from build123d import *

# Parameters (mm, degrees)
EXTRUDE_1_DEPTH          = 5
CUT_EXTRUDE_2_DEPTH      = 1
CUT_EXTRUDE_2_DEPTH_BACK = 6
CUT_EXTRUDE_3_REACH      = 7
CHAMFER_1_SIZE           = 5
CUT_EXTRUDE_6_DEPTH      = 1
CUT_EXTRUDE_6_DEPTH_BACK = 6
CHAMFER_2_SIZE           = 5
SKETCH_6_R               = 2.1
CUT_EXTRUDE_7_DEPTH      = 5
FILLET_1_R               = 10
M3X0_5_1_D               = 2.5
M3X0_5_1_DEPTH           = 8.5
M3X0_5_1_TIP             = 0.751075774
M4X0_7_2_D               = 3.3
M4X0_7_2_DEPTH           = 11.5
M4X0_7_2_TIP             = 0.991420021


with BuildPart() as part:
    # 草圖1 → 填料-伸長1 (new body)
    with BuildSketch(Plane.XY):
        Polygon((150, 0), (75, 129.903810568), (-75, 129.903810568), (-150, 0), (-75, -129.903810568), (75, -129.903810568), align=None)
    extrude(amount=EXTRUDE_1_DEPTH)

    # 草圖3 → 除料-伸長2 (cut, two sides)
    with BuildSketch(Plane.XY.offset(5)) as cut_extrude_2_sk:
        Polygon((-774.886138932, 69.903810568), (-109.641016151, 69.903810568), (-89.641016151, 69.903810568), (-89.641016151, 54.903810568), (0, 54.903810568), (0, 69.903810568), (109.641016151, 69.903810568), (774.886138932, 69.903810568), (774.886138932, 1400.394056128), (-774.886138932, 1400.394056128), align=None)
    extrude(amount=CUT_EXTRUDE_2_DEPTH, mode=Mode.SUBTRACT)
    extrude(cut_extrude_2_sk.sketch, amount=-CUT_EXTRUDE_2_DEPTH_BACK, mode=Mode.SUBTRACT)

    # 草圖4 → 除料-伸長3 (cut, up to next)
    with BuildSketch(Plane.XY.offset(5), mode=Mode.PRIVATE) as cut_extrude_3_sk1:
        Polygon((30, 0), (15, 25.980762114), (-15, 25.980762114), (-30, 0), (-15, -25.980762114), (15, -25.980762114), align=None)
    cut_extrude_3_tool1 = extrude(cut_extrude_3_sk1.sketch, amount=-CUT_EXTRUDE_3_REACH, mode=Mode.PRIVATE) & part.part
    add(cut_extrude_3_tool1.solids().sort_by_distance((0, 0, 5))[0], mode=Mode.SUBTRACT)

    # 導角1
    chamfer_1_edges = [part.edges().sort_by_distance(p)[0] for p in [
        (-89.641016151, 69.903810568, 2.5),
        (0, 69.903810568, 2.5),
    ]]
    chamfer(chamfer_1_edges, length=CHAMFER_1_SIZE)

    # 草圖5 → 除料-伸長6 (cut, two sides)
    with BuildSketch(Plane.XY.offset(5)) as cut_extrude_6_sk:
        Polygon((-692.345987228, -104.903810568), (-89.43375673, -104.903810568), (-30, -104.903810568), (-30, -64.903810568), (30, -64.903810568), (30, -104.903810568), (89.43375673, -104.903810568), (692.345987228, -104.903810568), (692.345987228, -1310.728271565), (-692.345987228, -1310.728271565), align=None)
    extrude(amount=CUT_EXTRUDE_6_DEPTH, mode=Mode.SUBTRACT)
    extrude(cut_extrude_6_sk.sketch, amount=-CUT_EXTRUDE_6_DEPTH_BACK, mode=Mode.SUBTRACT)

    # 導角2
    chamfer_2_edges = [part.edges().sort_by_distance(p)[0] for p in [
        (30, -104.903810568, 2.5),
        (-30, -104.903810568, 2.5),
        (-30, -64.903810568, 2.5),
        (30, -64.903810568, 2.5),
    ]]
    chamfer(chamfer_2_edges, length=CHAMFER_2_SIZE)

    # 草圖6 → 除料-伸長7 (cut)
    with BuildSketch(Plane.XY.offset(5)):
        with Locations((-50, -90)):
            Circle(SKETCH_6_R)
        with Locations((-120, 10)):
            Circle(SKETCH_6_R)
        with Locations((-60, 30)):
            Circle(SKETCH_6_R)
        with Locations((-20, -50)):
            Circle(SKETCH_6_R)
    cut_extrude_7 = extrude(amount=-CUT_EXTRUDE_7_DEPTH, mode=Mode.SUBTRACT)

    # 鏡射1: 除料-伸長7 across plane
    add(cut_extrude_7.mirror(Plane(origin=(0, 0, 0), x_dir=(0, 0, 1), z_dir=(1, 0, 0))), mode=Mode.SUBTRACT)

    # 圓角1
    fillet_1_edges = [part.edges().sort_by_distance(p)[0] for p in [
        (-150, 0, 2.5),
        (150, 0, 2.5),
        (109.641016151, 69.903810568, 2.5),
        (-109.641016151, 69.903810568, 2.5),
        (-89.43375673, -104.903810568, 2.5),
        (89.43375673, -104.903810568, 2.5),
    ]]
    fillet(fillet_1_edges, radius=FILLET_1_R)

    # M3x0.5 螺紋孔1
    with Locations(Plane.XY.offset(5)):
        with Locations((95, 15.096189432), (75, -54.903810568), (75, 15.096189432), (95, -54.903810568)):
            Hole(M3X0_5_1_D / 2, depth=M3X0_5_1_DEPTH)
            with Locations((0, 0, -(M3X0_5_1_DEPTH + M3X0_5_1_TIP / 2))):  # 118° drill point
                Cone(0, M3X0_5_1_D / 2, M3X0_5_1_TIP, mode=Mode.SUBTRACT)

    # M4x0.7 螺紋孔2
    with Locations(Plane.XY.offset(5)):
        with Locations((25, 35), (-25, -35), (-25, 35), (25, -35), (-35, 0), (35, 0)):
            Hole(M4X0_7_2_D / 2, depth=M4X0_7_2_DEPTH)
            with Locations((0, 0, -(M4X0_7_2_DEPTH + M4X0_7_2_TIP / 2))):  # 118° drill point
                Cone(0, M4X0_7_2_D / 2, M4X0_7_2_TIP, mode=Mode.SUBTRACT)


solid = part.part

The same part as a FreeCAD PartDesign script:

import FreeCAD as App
import Part
import Sketcher

V = App.Vector
Q = App.Units.Quantity


def edges_at(feature, points):
    """Names of the edges that pass closest to the given points."""
    edges = feature.Shape.Edges
    near = lambda p: min(range(len(edges)), key=lambda i: edges[i].distToShape(Part.Vertex(*p))[0])
    return sorted({f"Edge{near(p) + 1}" for p in points})


def add_polygon(sketch, points):
    """Adds a closed chain of lines whose ends are joined by coincident constraints."""
    first, n = sketch.GeometryCount, len(points)
    for a, b in zip(points, points[1:] + points[:1]):
        sketch.addGeometry(Part.LineSegment(App.Vector(*a, 0), App.Vector(*b, 0)), False)
    for i in range(n):
        sketch.addConstraint(Sketcher.Constraint("Coincident", first + i, 2, first + (i + 1) % n, 1))

doc = App.newDocument("Part")
params = doc.addObject("Spreadsheet::Sheet", "Params")
for row, (alias, value) in enumerate([
    ("sketch1_width", "150 mm"),
    ("sketch1_length", "150 mm"),
    ("pad1_length", "5 mm"),
    ("sketch2_height", "15 mm"),
    ("sketch3_width", "30 mm"),
    ("sketch3_length", "30 mm"),
    ("chamfer_size", "5 mm"),
    ("sketch4_width", "60 mm"),
    ("sketch4_height", "40 mm"),
    ("chamfer2_size", "5 mm"),
    ("sketch5_diameter", "4.2 mm"),
    ("pocket4_length", "5 mm"),
    ("fillet_radius", "10 mm"),
    ("sketch6_diameter", "2.5 mm"),
    ("hole_diameter", "2.5 mm"),
    ("hole_depth", "8.5 mm"),
    ("sketch7_diameter", "3.3 mm"),
    ("hole2_diameter", "3.3 mm"),
    ("hole2_depth", "11.5 mm"),
], start=1):
    params.set(f"A{row}", alias)
    params.set(f"B{row}", "=" + value)
    params.setAlias(f"B{row}", alias)

body = doc.addObject("PartDesign::Body", "Body")

# Sketch on XY plane
sketch1 = body.newObject("Sketcher::SketchObject", "Sketch")
sketch1.AttachmentSupport = (doc.getObject("XY_Plane"), [""])
sketch1.MapMode = "FlatFace"
add_polygon(sketch1, [(150, 0), (75, 130), (-75, 130), (-150, 0), (-75, -130), (75, -130)])  # lines 0-5
sketch1.addConstraint([
    Sketcher.Constraint("Horizontal", 1),
    Sketcher.Constraint("Horizontal", 4),
    Sketcher.Constraint("Symmetric", 0, 2, 3, 2, -1, 1),
    Sketcher.Constraint("Symmetric", 2, 2, 5, 2, -1, 1),
    Sketcher.Constraint("PointOnObject", 2, 2, -1),
    Sketcher.Constraint("Parallel", 2, 5),
    Sketcher.Constraint("Vertical", 1, 2, 3, 2),
    Sketcher.Constraint("DistanceX", 1, 2, 1, 1, 150.0),
    Sketcher.Constraint("Angle", 0, Q("120 deg")),
    Sketcher.Constraint("Distance", 0, 150.0),
])
sketch1.setExpression("Constraints[13]", "Params.sketch1_width")
sketch1.setExpression("Constraints[15]", "Params.sketch1_length")
pad1 = body.newObject("PartDesign::Pad", "Pad")
pad1.Profile = sketch1
pad1.setExpression("Length", "Params.pad1_length")

# Sketch on XY plane
sketch2 = body.newObject("Sketcher::SketchObject", "Sketch001")
sketch2.AttachmentSupport = (doc.getObject("XY_Plane"), [""])
sketch2.MapMode = "FlatFace"
sketch2.AttachmentOffset = App.Placement(V(0, 0, 5), App.Rotation())
add_polygon(sketch2, [(-775, 70), (-90, 70), (-90, 55), (0, 55), (0, 70), (775, 70), (775, 1400), (-775, 1400)])  # lines 0-7
sketch2.addConstraint([
    Sketcher.Constraint("Horizontal", 0),
    Sketcher.Constraint("Vertical", 1),
    Sketcher.Constraint("Horizontal", 2),
    Sketcher.Constraint("Vertical", 3),
    Sketcher.Constraint("Horizontal", 4),
    Sketcher.Constraint("Vertical", 5),
    Sketcher.Constraint("Horizontal", 6),
    Sketcher.Constraint("Vertical", 7),
    Sketcher.Constraint("Symmetric", 4, 2, 7, 2, -2),
    Sketcher.Constraint("PointOnObject", 2, 2, -2),
    Sketcher.Constraint("DistanceY", 1, 2, 1, 1, 15.0),
    Sketcher.Constraint("DistanceX", 4, 1, 4, 2, 774.886139),
    Sketcher.Constraint("DistanceX", 0, 1, 0, 2, 685.245123),
    Sketcher.Constraint("DistanceY", 5, 1, 5, 2, 1330.490246),
    Sketcher.Constraint("DistanceY", -1, 1, 0, 2, 69.903811),
])
sketch2.setExpression("Constraints[18]", "Params.sketch2_height")
pocket1 = body.newObject("PartDesign::Pocket", "Pocket")
pocket1.Profile = sketch2
pocket1.Type = "ThroughAll"
pocket1.Midplane = True

# Sketch on XY plane
sketch3 = body.newObject("Sketcher::SketchObject", "Sketch002")
sketch3.AttachmentSupport = (doc.getObject("XY_Plane"), [""])
sketch3.MapMode = "FlatFace"
sketch3.AttachmentOffset = App.Placement(V(0, 0, 5), App.Rotation())
add_polygon(sketch3, [(30, 0), (15, 26), (-15, 26), (-30, 0), (-15, -26), (15, -26)])  # lines 0-5
sketch3.addConstraint([
    Sketcher.Constraint("Horizontal", 1),
    Sketcher.Constraint("Horizontal", 4),
    Sketcher.Constraint("Symmetric", 0, 2, 3, 2, -1, 1),
    Sketcher.Constraint("Symmetric", 2, 2, 5, 2, -1, 1),
    Sketcher.Constraint("PointOnObject", 2, 2, -1),
    Sketcher.Constraint("Parallel", 2, 5),
    Sketcher.Constraint("Vertical", 1, 2, 3, 2),
    Sketcher.Constraint("DistanceX", 1, 2, 1, 1, 30.0),
    Sketcher.Constraint("Angle", 0, Q("120 deg")),
    Sketcher.Constraint("Distance", 0, 30.0),
])
sketch3.setExpression("Constraints[13]", "Params.sketch3_width")
sketch3.setExpression("Constraints[15]", "Params.sketch3_length")
pocket2 = body.newObject("PartDesign::Pocket", "Pocket001")
pocket2.Profile = sketch3
pocket2.Type = "UpToFirst"
doc.recompute()

chamfer = body.newObject("PartDesign::Chamfer", "Chamfer")
chamfer.Base = (pocket2, edges_at(pocket2, [(-89.641, 69.904, 2.5), (0, 69.904, 2.5)]))
chamfer.setExpression("Size", "Params.chamfer_size")

# Sketch on XY plane
sketch4 = body.newObject("Sketcher::SketchObject", "Sketch003")
sketch4.AttachmentSupport = (doc.getObject("XY_Plane"), [""])
sketch4.MapMode = "FlatFace"
sketch4.AttachmentOffset = App.Placement(V(0, 0, 5), App.Rotation())
add_polygon(sketch4, [(-30, -105), (-692, -105), (-692, -1311), (692, -1311), (692, -105), (30, -105), (30, -65), (-30, -65)])  # lines 0-7
sketch4.addConstraint([
    Sketcher.Constraint("Horizontal", 0),
    Sketcher.Constraint("Vertical", 1),
    Sketcher.Constraint("Horizontal", 2),
    Sketcher.Constraint("Vertical", 3),
    Sketcher.Constraint("Horizontal", 4),
    Sketcher.Constraint("Vertical", 5),
    Sketcher.Constraint("Horizontal", 6),
    Sketcher.Constraint("Vertical", 7),
    Sketcher.Constraint("Symmetric", 0, 2, 3, 2, -2),
    Sketcher.Constraint("Equal", 0, 4),
    Sketcher.Constraint("DistanceX", 6, 2, 6, 1, 60.0),
    Sketcher.Constraint("DistanceY", 5, 1, 5, 2, 40.0),
    Sketcher.Constraint("DistanceY", 1, 2, 1, 1, 1205.824461),
    Sketcher.Constraint("DistanceX", 0, 2, 0, 1, 662.345987),
    Sketcher.Constraint("DistanceY", 0, 2, -1, 1, 104.903811),
])
sketch4.setExpression("Constraints[18]", "Params.sketch4_width")
sketch4.setExpression("Constraints[19]", "Params.sketch4_height")
pocket3 = body.newObject("PartDesign::Pocket", "Pocket002")
pocket3.Profile = sketch4
pocket3.Type = "ThroughAll"
pocket3.Midplane = True
doc.recompute()

chamfer2 = body.newObject("PartDesign::Chamfer", "Chamfer001")
chamfer2.Base = (pocket3, edges_at(pocket3, [
    (30, -104.904, 2.5),
    (-30, -104.904, 2.5),
    (-30, -64.904, 2.5),
    (30, -64.904, 2.5),
]))
chamfer2.setExpression("Size", "Params.chamfer2_size")

# Sketch on XY plane
sketch5 = body.newObject("Sketcher::SketchObject", "Sketch004")
sketch5.AttachmentSupport = (doc.getObject("XY_Plane"), [""])
sketch5.MapMode = "FlatFace"
sketch5.AttachmentOffset = App.Placement(V(0, 0, 5), App.Rotation())
sketch5.addGeometry([
    Part.Circle(V(-50, -90, 0), V(0, 0, 1), 2.1),
    Part.Circle(V(-120, 10, 0), V(0, 0, 1), 2.1),
    Part.Circle(V(-60, 30, 0), V(0, 0, 1), 2.1),
    Part.Circle(V(-20, -50, 0), V(0, 0, 1), 2.1),
], False)
sketch5.addConstraint([
    Sketcher.Constraint("Equal", 0, 1),
    Sketcher.Constraint("Equal", 1, 2),
    Sketcher.Constraint("Equal", 2, 3),
    Sketcher.Constraint("Diameter", 0, 4.2),
    Sketcher.Constraint("DistanceX", 0, 3, -1, 1, 50.0),
    Sketcher.Constraint("DistanceY", 0, 3, -1, 1, 90.0),
    Sketcher.Constraint("DistanceX", 1, 3, -1, 1, 120.0),
    Sketcher.Constraint("DistanceY", -1, 1, 1, 3, 10.0),
    Sketcher.Constraint("DistanceX", 2, 3, -1, 1, 60.0),
    Sketcher.Constraint("DistanceY", -1, 1, 2, 3, 30.0),
    Sketcher.Constraint("DistanceX", 3, 3, -1, 1, 20.0),
    Sketcher.Constraint("DistanceY", 3, 3, -1, 1, 50.0),
])
sketch5.setExpression("Constraints[3]", "Params.sketch5_diameter")
pocket4 = body.newObject("PartDesign::Pocket", "Pocket003")
pocket4.Profile = sketch5
pocket4.setExpression("Length", "Params.pocket4_length")
doc.recompute()

mirrored = body.newObject("PartDesign::Mirrored", "Mirrored")
mirrored.Originals = [pocket4]
mirrored.MirrorPlane = (doc.getObject("YZ_Plane"), [""])
body.Tip = mirrored
doc.recompute()

fillet = body.newObject("PartDesign::Fillet", "Fillet")
fillet.Base = (mirrored, edges_at(mirrored, [
    (-150, 0, 2.5),
    (150, 0, 2.5),
    (109.641, 69.904, 2.5),
    (-109.641, 69.904, 2.5),
    (-89.434, -104.904, 2.5),
    (89.434, -104.904, 2.5),
]))
fillet.setExpression("Radius", "Params.fillet_radius")

# Sketch on XY plane
sketch6 = body.newObject("Sketcher::SketchObject", "Sketch005")
sketch6.AttachmentSupport = (doc.getObject("XY_Plane"), [""])
sketch6.MapMode = "FlatFace"
sketch6.AttachmentOffset = App.Placement(V(0, 0, 5), App.Rotation())
sketch6.addGeometry([
    Part.Circle(V(95, 15.1, 0), V(0, 0, 1), 1.2),
    Part.Circle(V(75, -54.9, 0), V(0, 0, 1), 1.2),
    Part.Circle(V(75, 15.1, 0), V(0, 0, 1), 1.2),
    Part.Circle(V(95, -54.9, 0), V(0, 0, 1), 1.2),
], False)
sketch6.addConstraint([
    Sketcher.Constraint("Equal", 0, 1),
    Sketcher.Constraint("Equal", 1, 2),
    Sketcher.Constraint("Equal", 2, 3),
    Sketcher.Constraint("Horizontal", 0, 3, 2, 3),
    Sketcher.Constraint("Horizontal", 1, 3, 3, 3),
    Sketcher.Constraint("Vertical", 1, 3, 2, 3),
    Sketcher.Constraint("Vertical", 0, 3, 3, 3),
    Sketcher.Constraint("Diameter", 0, 2.5),
    Sketcher.Constraint("DistanceX", -1, 1, 0, 3, 95.0),
    Sketcher.Constraint("DistanceX", -1, 1, 1, 3, 75.0),
    Sketcher.Constraint("DistanceY", 1, 3, 0, 3, 70.0),
    Sketcher.Constraint("DistanceY", -1, 1, 0, 3, 15.096189),
])
sketch6.setExpression("Constraints[7]", "Params.sketch6_diameter")
doc.recompute()
hole = body.newObject("PartDesign::Hole", "Hole")
hole.Profile = sketch6
hole.ThreadType = "None"
hole.setExpression("Diameter", "Params.hole_diameter")
hole.DepthType = "Dimension"
hole.setExpression("Depth", "Params.hole_depth")
hole.DrillPoint = "Angled"
hole.DrillPointAngle = 118

# Sketch on XY plane
sketch7 = body.newObject("Sketcher::SketchObject", "Sketch006")
sketch7.AttachmentSupport = (doc.getObject("XY_Plane"), [""])
sketch7.MapMode = "FlatFace"
sketch7.AttachmentOffset = App.Placement(V(0, 0, 5), App.Rotation())
sketch7.addGeometry([
    Part.Circle(V(25, 35, 0), V(0, 0, 1), 1.6),  # 0
    Part.Circle(V(-25, -35, 0), V(0, 0, 1), 1.6),  # 1
    Part.Circle(V(-25, 35, 0), V(0, 0, 1), 1.6),  # 2
    Part.Circle(V(25, -35, 0), V(0, 0, 1), 1.6),  # 3
    Part.Circle(V(-35, 0, 0), V(0, 0, 1), 1.6),  # 4
    Part.Circle(V(35, 0, 0), V(0, 0, 1), 1.6),  # 5
], False)
sketch7.addConstraint([
    Sketcher.Constraint("Equal", 0, 1),
    Sketcher.Constraint("Equal", 1, 2),
    Sketcher.Constraint("Equal", 2, 3),
    Sketcher.Constraint("Equal", 3, 4),
    Sketcher.Constraint("Equal", 4, 5),
    Sketcher.Constraint("Symmetric", 0, 3, 1, 3, -1, 1),
    Sketcher.Constraint("Symmetric", 2, 3, 3, 3, -1, 1),
    Sketcher.Constraint("Symmetric", 4, 3, 5, 3, -1, 1),
    Sketcher.Constraint("Symmetric", 0, 3, 2, 3, -2),
    Sketcher.Constraint("PointOnObject", 4, 3, -1),
    Sketcher.Constraint("Diameter", 0, 3.3),
    Sketcher.Constraint("DistanceX", -1, 1, 0, 3, 25.0),
    Sketcher.Constraint("DistanceY", -1, 1, 0, 3, 35.0),
    Sketcher.Constraint("DistanceX", 4, 3, -1, 1, 35.0),
])
sketch7.setExpression("Constraints[10]", "Params.sketch7_diameter")
doc.recompute()
hole2 = body.newObject("PartDesign::Hole", "Hole001")
hole2.Profile = sketch7
hole2.ThreadType = "None"
hole2.setExpression("Diameter", "Params.hole2_diameter")
hole2.DepthType = "Dimension"
hole2.setExpression("Depth", "Params.hole2_depth")
hole2.DrillPoint = "Angled"
hole2.DrillPointAngle = 118

doc.recompute()
